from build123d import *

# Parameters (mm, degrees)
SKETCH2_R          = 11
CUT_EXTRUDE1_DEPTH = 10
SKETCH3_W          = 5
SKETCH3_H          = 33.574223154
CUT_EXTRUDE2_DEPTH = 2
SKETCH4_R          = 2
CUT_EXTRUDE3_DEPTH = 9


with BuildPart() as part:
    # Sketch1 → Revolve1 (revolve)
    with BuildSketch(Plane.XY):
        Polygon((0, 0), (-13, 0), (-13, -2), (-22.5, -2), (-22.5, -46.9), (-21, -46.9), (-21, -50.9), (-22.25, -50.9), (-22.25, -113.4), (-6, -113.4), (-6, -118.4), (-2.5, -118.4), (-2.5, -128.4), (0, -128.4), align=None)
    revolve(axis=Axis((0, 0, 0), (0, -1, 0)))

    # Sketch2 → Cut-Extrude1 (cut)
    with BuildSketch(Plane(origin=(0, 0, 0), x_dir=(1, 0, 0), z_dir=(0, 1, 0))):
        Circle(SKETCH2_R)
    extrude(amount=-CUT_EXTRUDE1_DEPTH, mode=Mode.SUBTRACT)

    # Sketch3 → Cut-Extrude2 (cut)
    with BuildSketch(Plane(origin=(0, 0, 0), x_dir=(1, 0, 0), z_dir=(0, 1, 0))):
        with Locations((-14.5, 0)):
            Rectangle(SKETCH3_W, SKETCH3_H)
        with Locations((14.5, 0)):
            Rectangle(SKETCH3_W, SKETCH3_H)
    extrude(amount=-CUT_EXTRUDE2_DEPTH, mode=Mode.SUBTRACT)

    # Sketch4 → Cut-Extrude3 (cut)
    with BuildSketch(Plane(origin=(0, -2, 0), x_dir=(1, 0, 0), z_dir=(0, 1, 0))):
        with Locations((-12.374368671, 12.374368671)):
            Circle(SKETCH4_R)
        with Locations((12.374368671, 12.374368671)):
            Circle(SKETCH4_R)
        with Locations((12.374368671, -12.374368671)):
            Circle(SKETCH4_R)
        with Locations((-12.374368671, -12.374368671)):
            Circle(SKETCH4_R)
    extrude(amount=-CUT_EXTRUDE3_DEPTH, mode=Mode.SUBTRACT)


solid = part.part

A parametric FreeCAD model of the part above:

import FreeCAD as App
import Part
import Sketcher
Q = App.Units.Quantity

doc = App.newDocument("Part")
body = doc.addObject("PartDesign::Body", "Body")

# Sketch on XY plane
sketch1 = body.newObject("Sketcher::SketchObject", "Sketch")
sketch1.AttachmentSupport = (doc.getObject("XY_Plane"), [""])
sketch1.MapMode = "FlatFace"
sketch1.addGeometry([
    Part.LineSegment(App.Vector(0, 0, 0), App.Vector(-13, 0, 0)),  # 0
    Part.LineSegment(App.Vector(-13, 0, 0), App.Vector(-13, -2, 0)),  # 1
    Part.LineSegment(App.Vector(-13, -2, 0), App.Vector(-22.5, -2, 0)),  # 2
    Part.LineSegment(App.Vector(-22.5, -2, 0), App.Vector(-22.5, -46.9, 0)),  # 3
    Part.LineSegment(App.Vector(-22.5, -46.9, 0), App.Vector(-21, -46.9, 0)),  # 4
    Part.LineSegment(App.Vector(-21, -46.9, 0), App.Vector(-21, -50.9, 0)),  # 5
    Part.LineSegment(App.Vector(-21, -50.9, 0), App.Vector(-22.2, -50.9, 0)),  # 6
    Part.LineSegment(App.Vector(-22.2, -50.9, 0), App.Vector(-22.2, -113.4, 0)),  # 7
    Part.LineSegment(App.Vector(-22.2, -113.4, 0), App.Vector(-6, -113.4, 0)),  # 8
    Part.LineSegment(App.Vector(-6, -113.4, 0), App.Vector(-6, -118.4, 0)),  # 9
    Part.LineSegment(App.Vector(-6, -118.4, 0), App.Vector(-2.5, -118.4, 0)),  # 10
    Part.LineSegment(App.Vector(-2.5, -118.4, 0), App.Vector(-2.5, -128.4, 0)),  # 11
    Part.LineSegment(App.Vector(-2.5, -128.4, 0), App.Vector(0, -128.4, 0)),  # 12
    Part.LineSegment(App.Vector(0, -128.4, 0), App.Vector(0, 0, 0)),  # 13
], False)
sketch1.addConstraint([
    Sketcher.Constraint("Coincident", 0, 2, 1, 1),
    Sketcher.Constraint("Coincident", 1, 2, 2, 1),
    Sketcher.Constraint("Coincident", 2, 2, 3, 1),
    Sketcher.Constraint("Coincident", 3, 2, 4, 1),
    Sketcher.Constraint("Coincident", 4, 2, 5, 1),
    Sketcher.Constraint("Coincident", 5, 2, 6, 1),
    Sketcher.Constraint("Coincident", 6, 2, 7, 1),
    Sketcher.Constraint("Coincident", 7, 2, 8, 1),
    Sketcher.Constraint("Coincident", 8, 2, 9, 1),
    Sketcher.Constraint("Coincident", 9, 2, 10, 1),
    Sketcher.Constraint("Coincident", 10, 2, 11, 1),
    Sketcher.Constraint("Coincident", 11, 2, 12, 1),
    Sketcher.Constraint("Coincident", 12, 2, 13, 1),
    Sketcher.Constraint("Coincident", 13, 2, 0, 1),
    Sketcher.Constraint("Horizontal", 0),
    Sketcher.Constraint("Vertical", 1),
    Sketcher.Constraint("Horizontal", 2),
    Sketcher.Constraint("Vertical", 3),
    Sketcher.Constraint("Horizontal", 4),
    Sketcher.Constraint("Vertical", 5),
    Sketcher.Constraint("Horizontal", 6),
    Sketcher.Constraint("Vertical", 7),
    Sketcher.Constraint("Horizontal", 8),
    Sketcher.Constraint("Vertical", 9),
    Sketcher.Constraint("Horizontal", 10),
    Sketcher.Constraint("Vertical", 11),
    Sketcher.Constraint("Horizontal", 12),
    Sketcher.Constraint("Vertical", 13),
    Sketcher.Constraint("Coincident", 13, 2, -1, 1),
    Sketcher.Constraint("DistanceX", 0, 2, 0, 1, Q("13 mm")),
    Sketcher.Constraint("DistanceY", 1, 2, 1, 1, Q("2 mm")),
    Sketcher.Constraint("DistanceY", 5, 2, 5, 1, Q("4 mm")),
    Sketcher.Constraint("DistanceY", 9, 2, 9, 1, Q("5 mm")),
    Sketcher.Constraint("DistanceY", 11, 2, 11, 1, Q("10 mm")),
    Sketcher.Constraint("DistanceX", 2, 2, 2, 1, Q("9.5 mm")),
    Sketcher.Constraint("DistanceX", 4, 1, 4, 2, Q("1.5 mm")),
    Sketcher.Constraint("DistanceX", 10, 1, 10, 2, Q("3.5 mm")),
    Sketcher.Constraint("DistanceX", 12, 1, 12, 2, Q("2.5 mm")),
    Sketcher.Constraint("DistanceY", 3, 2, 3, 1, Q("44.9 mm")),
    Sketcher.Constraint("DistanceY", 7, 2, 7, 1, Q("62.5 mm")),
    Sketcher.Constraint("DistanceX", 6, 2, 6, 1, Q("1.25 mm")),
])
revolution = body.newObject("PartDesign::Revolution", "Revolution")
revolution.Profile = sketch1
revolution.ReferenceAxis = (sketch1, ["V_Axis"])
revolution.Angle = 360

# Sketch on XZ plane
sketch2 = body.newObject("Sketcher::SketchObject", "Sketch001")
sketch2.AttachmentSupport = (doc.getObject("XZ_Plane"), [""])
sketch2.MapMode = "FlatFace"
sketch2.addGeometry(Part.Circle(App.Vector(0, 0, 0), App.Vector(0, 0, 1), 11), False)
sketch2.addConstraint([
    Sketcher.Constraint("Coincident", 0, 3, -1, 1),
    Sketcher.Constraint("Diameter", 0, Q("22 mm")),
])
pocket1 = body.newObject("PartDesign::Pocket", "Pocket")
pocket1.Profile = sketch2
pocket1.Length = 10
pocket1.Reversed = True

# Sketch on XZ plane
sketch3 = body.newObject("Sketcher::SketchObject", "Sketch002")
sketch3.AttachmentSupport = (doc.getObject("XZ_Plane"), [""])
sketch3.MapMode = "FlatFace"
sketch3.addGeometry([
    Part.LineSegment(App.Vector(-17, -17, 0), App.Vector(-17, 17, 0)),  # 0
    Part.LineSegment(App.Vector(-17, 17, 0), App.Vector(-12, 17, 0)),  # 1
    Part.LineSegment(App.Vector(-12, 17, 0), App.Vector(-12, -17, 0)),  # 2
    Part.LineSegment(App.Vector(-12, -17, 0), App.Vector(-17, -17, 0)),  # 3
    Part.LineSegment(App.Vector(12, -17, 0), App.Vector(12, 17, 0)),  # 4
    Part.LineSegment(App.Vector(12, 17, 0), App.Vector(17, 17, 0)),  # 5
    Part.LineSegment(App.Vector(17, 17, 0), App.Vector(17, -17, 0)),  # 6
    Part.LineSegment(App.Vector(17, -17, 0), App.Vector(12, -17, 0)),  # 7
], False)
sketch3.addConstraint([
    Sketcher.Constraint("Coincident", 0, 2, 1, 1),
    Sketcher.Constraint("Coincident", 1, 2, 2, 1),
    Sketcher.Constraint("Coincident", 2, 2, 3, 1),
    Sketcher.Constraint("Coincident", 3, 2, 0, 1),
    Sketcher.Constraint("Coincident", 4, 2, 5, 1),
    Sketcher.Constraint("Coincident", 5, 2, 6, 1),
    Sketcher.Constraint("Coincident", 6, 2, 7, 1),
    Sketcher.Constraint("Coincident", 7, 2, 4, 1),
    Sketcher.Constraint("Vertical", 0),
    Sketcher.Constraint("Horizontal", 1),
    Sketcher.Constraint("Vertical", 2),
    Sketcher.Constraint("Horizontal", 3),
    Sketcher.Constraint("Vertical", 4),
    Sketcher.Constraint("Horizontal", 5),
    Sketcher.Constraint("Vertical", 6),
    Sketcher.Constraint("Horizontal", 7),
    Sketcher.Constraint("Symmetric", 2, 2, 4, 2, -1, 1),
    Sketcher.Constraint("Symmetric", 0, 2, 6, 2, -1, 1),
    Sketcher.Constraint("Horizontal", 1, 2, 4, 2),
    Sketcher.Constraint("DistanceX", 1, 1, 1, 2, Q("5 mm")),
    Sketcher.Constraint("DistanceX", 0, 2, -1, 1, Q("17 mm")),
    Sketcher.Constraint("DistanceY", 0, 1, 0, 2, Q("33.574223 mm")),
])
pocket2 = body.newObject("PartDesign::Pocket", "Pocket001")
pocket2.Profile = sketch3
pocket2.Length = 2
pocket2.Reversed = True

# Sketch on XZ plane
sketch4 = body.newObject("Sketcher::SketchObject", "Sketch003")
sketch4.AttachmentSupport = (doc.getObject("XZ_Plane"), [""])
sketch4.MapMode = "FlatFace"
sketch4.AttachmentOffset = App.Placement(App.Vector(0, 0, 2), App.Rotation())
sketch4.addGeometry([
    Part.Circle(App.Vector(-12.4, -12.4, 0), App.Vector(0, 0, 1), 2),
    Part.Circle(App.Vector(12.4, -12.4, 0), App.Vector(0, 0, 1), 2),
    Part.Circle(App.Vector(12.4, 12.4, 0), App.Vector(0, 0, 1), 2),
    Part.Circle(App.Vector(-12.4, 12.4, 0), App.Vector(0, 0, 1), 2),
], False)
sketch4.addConstraint([
    Sketcher.Constraint("Equal", 0, 1),
    Sketcher.Constraint("Equal", 1, 2),
    Sketcher.Constraint("Equal", 2, 3),
    Sketcher.Constraint("Symmetric", 0, 3, 2, 3, -1, 1),
    Sketcher.Constraint("Symmetric", 1, 3, 3, 3, -1, 1),
    Sketcher.Constraint("Symmetric", 0, 3, 1, 3, -2),
    Sketcher.Constraint("Diameter", 0, Q("4 mm")),
    Sketcher.Constraint("DistanceX", 0, 3, -1, 1, Q("12.374369 mm")),
    Sketcher.Constraint("DistanceY", 0, 3, -1, 1, Q("12.374369 mm")),
])
pocket3 = body.newObject("PartDesign::Pocket", "Pocket002")
pocket3.Profile = sketch4
pocket3.Length = 9
pocket3.Reversed = True

doc.recompute()
